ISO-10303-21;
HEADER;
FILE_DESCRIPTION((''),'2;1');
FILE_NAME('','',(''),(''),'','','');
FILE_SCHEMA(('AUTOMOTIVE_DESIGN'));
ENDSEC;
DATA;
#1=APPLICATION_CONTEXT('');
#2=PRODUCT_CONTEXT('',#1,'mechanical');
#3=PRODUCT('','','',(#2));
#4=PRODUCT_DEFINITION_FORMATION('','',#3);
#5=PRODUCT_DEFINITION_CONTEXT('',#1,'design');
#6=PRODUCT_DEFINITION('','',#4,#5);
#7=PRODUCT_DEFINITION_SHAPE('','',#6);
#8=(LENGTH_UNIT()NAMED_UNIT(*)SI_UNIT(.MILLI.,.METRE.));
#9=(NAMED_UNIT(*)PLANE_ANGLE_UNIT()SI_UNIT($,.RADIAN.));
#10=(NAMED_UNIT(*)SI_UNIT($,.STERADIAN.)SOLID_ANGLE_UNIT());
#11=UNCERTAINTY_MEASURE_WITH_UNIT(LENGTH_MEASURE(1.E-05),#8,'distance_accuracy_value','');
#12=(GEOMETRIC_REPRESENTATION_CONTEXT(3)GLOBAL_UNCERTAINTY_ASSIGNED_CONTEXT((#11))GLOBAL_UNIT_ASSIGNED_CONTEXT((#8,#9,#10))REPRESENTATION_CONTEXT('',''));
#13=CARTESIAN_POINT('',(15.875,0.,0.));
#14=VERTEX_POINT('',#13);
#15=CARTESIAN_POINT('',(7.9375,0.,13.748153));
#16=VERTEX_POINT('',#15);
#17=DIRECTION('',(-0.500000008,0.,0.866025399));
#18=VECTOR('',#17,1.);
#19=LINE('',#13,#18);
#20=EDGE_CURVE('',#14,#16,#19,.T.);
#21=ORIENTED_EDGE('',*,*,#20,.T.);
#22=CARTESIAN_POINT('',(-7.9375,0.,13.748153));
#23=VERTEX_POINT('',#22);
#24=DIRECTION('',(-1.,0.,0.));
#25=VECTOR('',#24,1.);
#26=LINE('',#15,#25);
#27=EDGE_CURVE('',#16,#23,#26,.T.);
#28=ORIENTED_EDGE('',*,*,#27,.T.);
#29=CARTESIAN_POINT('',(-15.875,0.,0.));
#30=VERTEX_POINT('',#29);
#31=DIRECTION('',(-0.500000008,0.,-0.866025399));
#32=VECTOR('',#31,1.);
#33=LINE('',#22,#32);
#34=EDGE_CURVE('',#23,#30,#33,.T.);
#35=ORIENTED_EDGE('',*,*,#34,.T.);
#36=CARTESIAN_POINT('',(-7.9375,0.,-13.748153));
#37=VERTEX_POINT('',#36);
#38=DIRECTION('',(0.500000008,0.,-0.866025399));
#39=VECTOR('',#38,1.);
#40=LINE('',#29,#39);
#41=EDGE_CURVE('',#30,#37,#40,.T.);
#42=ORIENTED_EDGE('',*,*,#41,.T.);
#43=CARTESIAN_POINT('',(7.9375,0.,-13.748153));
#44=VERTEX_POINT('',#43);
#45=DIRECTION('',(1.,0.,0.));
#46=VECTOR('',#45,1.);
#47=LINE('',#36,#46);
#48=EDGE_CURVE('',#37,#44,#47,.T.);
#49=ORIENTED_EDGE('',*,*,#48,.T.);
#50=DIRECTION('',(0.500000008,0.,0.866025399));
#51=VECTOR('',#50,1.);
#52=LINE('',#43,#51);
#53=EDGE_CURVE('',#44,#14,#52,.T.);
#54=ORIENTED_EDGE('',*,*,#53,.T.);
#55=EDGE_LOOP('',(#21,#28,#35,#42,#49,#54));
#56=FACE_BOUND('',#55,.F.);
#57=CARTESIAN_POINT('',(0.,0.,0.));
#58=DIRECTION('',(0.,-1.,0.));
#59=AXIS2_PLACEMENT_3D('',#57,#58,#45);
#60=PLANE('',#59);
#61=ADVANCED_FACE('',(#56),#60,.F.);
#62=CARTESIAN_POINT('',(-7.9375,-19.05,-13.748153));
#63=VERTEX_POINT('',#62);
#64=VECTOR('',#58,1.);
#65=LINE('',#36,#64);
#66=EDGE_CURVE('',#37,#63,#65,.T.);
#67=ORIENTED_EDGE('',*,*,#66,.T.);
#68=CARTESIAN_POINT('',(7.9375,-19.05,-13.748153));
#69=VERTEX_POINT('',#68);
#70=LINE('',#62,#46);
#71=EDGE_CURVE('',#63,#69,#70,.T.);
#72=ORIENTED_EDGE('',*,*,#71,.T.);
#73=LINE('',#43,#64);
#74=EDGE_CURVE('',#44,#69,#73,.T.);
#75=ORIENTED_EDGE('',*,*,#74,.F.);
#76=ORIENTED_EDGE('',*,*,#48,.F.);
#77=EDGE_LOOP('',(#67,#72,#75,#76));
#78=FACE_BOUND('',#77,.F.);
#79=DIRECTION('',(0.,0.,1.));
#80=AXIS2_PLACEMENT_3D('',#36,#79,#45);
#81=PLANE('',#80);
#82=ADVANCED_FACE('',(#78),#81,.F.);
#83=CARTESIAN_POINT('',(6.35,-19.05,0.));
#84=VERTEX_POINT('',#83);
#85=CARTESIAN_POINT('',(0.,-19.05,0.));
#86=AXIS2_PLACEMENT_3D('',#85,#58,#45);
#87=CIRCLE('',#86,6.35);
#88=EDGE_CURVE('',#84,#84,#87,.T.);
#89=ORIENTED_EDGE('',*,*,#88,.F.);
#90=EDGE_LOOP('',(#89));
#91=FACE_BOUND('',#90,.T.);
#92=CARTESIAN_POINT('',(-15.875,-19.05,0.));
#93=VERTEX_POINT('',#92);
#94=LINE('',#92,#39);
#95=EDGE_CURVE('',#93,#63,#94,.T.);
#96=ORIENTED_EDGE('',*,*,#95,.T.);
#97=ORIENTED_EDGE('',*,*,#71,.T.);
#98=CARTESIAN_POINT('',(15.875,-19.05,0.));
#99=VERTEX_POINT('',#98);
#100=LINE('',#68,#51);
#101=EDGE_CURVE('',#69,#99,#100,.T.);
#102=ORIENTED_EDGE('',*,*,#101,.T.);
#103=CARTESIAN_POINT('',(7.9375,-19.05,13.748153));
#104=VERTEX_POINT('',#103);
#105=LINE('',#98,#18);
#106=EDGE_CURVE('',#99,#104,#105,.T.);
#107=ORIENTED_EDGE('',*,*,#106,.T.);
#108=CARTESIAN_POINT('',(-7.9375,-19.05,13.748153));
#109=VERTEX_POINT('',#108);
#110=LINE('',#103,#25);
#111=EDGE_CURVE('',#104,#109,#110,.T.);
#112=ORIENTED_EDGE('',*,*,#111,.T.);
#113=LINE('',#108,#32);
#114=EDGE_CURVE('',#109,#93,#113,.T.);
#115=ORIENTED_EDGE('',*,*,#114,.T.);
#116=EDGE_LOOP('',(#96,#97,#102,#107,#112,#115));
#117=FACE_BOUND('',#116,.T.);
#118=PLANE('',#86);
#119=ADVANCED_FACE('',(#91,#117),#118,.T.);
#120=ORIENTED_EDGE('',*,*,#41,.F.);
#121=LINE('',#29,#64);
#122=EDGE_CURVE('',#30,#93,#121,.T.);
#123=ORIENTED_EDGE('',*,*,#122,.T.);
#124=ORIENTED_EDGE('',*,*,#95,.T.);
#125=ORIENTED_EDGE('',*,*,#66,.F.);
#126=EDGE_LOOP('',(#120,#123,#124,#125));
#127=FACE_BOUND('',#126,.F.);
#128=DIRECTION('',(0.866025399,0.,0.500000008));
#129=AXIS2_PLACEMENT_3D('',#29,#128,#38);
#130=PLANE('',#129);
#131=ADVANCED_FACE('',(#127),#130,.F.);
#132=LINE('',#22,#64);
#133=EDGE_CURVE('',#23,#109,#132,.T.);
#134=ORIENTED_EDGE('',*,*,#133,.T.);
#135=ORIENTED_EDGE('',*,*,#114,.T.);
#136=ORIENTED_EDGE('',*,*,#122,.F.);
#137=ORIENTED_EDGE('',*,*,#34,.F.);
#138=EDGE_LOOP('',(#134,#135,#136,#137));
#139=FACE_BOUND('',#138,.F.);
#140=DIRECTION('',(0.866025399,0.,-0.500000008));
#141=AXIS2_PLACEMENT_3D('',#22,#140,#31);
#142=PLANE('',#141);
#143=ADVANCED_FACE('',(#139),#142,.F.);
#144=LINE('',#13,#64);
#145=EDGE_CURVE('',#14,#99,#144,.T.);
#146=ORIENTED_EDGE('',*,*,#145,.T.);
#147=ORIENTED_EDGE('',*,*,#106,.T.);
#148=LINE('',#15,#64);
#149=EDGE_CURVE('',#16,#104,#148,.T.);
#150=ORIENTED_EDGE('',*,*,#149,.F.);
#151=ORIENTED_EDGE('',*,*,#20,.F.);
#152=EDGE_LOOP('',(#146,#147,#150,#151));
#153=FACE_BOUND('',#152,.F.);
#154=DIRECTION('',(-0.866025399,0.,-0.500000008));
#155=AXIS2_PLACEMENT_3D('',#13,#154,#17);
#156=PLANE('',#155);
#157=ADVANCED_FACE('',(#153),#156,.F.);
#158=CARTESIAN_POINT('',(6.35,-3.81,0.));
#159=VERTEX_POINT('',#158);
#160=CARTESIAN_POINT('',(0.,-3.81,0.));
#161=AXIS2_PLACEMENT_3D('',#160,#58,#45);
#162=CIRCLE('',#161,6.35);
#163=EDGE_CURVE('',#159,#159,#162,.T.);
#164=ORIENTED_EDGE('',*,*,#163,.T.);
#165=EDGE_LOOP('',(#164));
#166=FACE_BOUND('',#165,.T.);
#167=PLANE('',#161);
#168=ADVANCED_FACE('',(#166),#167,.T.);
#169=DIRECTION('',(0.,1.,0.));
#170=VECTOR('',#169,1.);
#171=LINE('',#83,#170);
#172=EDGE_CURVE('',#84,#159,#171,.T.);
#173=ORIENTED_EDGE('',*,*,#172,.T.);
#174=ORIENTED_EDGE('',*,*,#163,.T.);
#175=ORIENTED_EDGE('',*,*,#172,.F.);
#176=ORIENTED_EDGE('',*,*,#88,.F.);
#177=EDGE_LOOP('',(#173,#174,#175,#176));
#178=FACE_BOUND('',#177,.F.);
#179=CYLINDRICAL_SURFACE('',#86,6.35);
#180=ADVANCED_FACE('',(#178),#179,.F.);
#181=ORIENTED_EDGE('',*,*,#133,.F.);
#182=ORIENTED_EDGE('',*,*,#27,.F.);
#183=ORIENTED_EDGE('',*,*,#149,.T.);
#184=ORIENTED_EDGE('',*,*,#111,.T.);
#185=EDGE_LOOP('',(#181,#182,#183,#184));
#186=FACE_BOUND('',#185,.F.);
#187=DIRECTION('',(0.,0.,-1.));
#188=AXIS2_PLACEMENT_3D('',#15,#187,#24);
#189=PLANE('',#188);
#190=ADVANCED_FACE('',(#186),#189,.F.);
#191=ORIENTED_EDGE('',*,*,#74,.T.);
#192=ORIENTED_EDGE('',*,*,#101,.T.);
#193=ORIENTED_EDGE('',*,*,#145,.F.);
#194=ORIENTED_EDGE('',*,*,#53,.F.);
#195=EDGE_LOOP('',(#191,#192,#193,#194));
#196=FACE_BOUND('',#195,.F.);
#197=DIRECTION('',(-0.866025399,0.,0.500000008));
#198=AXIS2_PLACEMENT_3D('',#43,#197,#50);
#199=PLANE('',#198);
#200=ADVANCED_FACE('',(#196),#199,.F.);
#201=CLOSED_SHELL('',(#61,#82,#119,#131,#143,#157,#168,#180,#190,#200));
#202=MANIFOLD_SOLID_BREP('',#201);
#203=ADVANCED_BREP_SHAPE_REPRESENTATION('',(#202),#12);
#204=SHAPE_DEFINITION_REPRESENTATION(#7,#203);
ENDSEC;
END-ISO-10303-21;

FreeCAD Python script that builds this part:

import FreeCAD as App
import Part
import Sketcher
from FreeCAD import Vector
Q = App.Units.Quantity


def add_polygon(sketch, points):
    """Adds a closed chain of lines whose ends are joined by coincident constraints."""
    first, n = sketch.GeometryCount, len(points)
    for a, b in zip(points, points[1:] + points[:1]):
        sketch.addGeometry(Part.LineSegment(App.Vector(*a, 0), App.Vector(*b, 0)), False)
    for i in range(n):
        sketch.addConstraint(Sketcher.Constraint("Coincident", first + i, 2, first + (i + 1) % n, 1))

doc = App.newDocument("Part")
body = doc.addObject("PartDesign::Body", "Body")

sketch1 = body.newObject("Sketcher::SketchObject", "Sketch")
sketch1.AttachmentSupport = (doc.getObject("XZ_Plane"), [""])
sketch1.MapMode = "FlatFace"
add_polygon(sketch1, [(8, -14), (16, 0), (8, 14), (-8, 14), (-16, 0), (-8, -14)])
sketch1.addConstraint([
    Sketcher.Constraint("Horizontal", 2),
    Sketcher.Constraint("Horizontal", 5),
    Sketcher.Constraint("Symmetric", 0, 2, 3, 2, -1, 1),
    Sketcher.Constraint("Symmetric", 1, 2, 4, 2, -1, 1),
    Sketcher.Constraint("PointOnObject", 0, 2, -1),
    Sketcher.Constraint("Parallel", 0, 3),
    Sketcher.Constraint("Vertical", 2, 2, 4, 2),
    Sketcher.Constraint("Angle", 0, Q("59.999999 deg")),
    Sketcher.Constraint("DistanceX", 2, 2, 2, 1, Q("0.625 in")),
    Sketcher.Constraint("DistanceX", 3, 2, 0, 2, Q("1.25 in")),
])
pad1 = body.newObject("PartDesign::Pad", "Pad")
pad1.Profile = sketch1
pad1.Length = Q("0.75 in")

sketch2 = body.newObject("Sketcher::SketchObject", "Sketch001")
sketch2.AttachmentSupport = (doc.getObject("XZ_Plane"), [""])
sketch2.MapMode = "FlatFace"
sketch2.AttachmentOffset = App.Placement(Vector(0, 0, 0.75 * 25.4), App.Rotation())
sketch2.addGeometry(Part.Circle(Vector(0, 0, 0), Vector(0, 0, 1), 6), False)
sketch2.addConstraint([
    Sketcher.Constraint("Coincident", 0, 3, -1, 1),
    Sketcher.Constraint("Diameter", 0, Q("0.5 in")),
])
pocket1 = body.newObject("PartDesign::Pocket", "Pocket")
pocket1.Profile = sketch2
pocket1.Length = Q("0.6 in")

doc.recompute()
